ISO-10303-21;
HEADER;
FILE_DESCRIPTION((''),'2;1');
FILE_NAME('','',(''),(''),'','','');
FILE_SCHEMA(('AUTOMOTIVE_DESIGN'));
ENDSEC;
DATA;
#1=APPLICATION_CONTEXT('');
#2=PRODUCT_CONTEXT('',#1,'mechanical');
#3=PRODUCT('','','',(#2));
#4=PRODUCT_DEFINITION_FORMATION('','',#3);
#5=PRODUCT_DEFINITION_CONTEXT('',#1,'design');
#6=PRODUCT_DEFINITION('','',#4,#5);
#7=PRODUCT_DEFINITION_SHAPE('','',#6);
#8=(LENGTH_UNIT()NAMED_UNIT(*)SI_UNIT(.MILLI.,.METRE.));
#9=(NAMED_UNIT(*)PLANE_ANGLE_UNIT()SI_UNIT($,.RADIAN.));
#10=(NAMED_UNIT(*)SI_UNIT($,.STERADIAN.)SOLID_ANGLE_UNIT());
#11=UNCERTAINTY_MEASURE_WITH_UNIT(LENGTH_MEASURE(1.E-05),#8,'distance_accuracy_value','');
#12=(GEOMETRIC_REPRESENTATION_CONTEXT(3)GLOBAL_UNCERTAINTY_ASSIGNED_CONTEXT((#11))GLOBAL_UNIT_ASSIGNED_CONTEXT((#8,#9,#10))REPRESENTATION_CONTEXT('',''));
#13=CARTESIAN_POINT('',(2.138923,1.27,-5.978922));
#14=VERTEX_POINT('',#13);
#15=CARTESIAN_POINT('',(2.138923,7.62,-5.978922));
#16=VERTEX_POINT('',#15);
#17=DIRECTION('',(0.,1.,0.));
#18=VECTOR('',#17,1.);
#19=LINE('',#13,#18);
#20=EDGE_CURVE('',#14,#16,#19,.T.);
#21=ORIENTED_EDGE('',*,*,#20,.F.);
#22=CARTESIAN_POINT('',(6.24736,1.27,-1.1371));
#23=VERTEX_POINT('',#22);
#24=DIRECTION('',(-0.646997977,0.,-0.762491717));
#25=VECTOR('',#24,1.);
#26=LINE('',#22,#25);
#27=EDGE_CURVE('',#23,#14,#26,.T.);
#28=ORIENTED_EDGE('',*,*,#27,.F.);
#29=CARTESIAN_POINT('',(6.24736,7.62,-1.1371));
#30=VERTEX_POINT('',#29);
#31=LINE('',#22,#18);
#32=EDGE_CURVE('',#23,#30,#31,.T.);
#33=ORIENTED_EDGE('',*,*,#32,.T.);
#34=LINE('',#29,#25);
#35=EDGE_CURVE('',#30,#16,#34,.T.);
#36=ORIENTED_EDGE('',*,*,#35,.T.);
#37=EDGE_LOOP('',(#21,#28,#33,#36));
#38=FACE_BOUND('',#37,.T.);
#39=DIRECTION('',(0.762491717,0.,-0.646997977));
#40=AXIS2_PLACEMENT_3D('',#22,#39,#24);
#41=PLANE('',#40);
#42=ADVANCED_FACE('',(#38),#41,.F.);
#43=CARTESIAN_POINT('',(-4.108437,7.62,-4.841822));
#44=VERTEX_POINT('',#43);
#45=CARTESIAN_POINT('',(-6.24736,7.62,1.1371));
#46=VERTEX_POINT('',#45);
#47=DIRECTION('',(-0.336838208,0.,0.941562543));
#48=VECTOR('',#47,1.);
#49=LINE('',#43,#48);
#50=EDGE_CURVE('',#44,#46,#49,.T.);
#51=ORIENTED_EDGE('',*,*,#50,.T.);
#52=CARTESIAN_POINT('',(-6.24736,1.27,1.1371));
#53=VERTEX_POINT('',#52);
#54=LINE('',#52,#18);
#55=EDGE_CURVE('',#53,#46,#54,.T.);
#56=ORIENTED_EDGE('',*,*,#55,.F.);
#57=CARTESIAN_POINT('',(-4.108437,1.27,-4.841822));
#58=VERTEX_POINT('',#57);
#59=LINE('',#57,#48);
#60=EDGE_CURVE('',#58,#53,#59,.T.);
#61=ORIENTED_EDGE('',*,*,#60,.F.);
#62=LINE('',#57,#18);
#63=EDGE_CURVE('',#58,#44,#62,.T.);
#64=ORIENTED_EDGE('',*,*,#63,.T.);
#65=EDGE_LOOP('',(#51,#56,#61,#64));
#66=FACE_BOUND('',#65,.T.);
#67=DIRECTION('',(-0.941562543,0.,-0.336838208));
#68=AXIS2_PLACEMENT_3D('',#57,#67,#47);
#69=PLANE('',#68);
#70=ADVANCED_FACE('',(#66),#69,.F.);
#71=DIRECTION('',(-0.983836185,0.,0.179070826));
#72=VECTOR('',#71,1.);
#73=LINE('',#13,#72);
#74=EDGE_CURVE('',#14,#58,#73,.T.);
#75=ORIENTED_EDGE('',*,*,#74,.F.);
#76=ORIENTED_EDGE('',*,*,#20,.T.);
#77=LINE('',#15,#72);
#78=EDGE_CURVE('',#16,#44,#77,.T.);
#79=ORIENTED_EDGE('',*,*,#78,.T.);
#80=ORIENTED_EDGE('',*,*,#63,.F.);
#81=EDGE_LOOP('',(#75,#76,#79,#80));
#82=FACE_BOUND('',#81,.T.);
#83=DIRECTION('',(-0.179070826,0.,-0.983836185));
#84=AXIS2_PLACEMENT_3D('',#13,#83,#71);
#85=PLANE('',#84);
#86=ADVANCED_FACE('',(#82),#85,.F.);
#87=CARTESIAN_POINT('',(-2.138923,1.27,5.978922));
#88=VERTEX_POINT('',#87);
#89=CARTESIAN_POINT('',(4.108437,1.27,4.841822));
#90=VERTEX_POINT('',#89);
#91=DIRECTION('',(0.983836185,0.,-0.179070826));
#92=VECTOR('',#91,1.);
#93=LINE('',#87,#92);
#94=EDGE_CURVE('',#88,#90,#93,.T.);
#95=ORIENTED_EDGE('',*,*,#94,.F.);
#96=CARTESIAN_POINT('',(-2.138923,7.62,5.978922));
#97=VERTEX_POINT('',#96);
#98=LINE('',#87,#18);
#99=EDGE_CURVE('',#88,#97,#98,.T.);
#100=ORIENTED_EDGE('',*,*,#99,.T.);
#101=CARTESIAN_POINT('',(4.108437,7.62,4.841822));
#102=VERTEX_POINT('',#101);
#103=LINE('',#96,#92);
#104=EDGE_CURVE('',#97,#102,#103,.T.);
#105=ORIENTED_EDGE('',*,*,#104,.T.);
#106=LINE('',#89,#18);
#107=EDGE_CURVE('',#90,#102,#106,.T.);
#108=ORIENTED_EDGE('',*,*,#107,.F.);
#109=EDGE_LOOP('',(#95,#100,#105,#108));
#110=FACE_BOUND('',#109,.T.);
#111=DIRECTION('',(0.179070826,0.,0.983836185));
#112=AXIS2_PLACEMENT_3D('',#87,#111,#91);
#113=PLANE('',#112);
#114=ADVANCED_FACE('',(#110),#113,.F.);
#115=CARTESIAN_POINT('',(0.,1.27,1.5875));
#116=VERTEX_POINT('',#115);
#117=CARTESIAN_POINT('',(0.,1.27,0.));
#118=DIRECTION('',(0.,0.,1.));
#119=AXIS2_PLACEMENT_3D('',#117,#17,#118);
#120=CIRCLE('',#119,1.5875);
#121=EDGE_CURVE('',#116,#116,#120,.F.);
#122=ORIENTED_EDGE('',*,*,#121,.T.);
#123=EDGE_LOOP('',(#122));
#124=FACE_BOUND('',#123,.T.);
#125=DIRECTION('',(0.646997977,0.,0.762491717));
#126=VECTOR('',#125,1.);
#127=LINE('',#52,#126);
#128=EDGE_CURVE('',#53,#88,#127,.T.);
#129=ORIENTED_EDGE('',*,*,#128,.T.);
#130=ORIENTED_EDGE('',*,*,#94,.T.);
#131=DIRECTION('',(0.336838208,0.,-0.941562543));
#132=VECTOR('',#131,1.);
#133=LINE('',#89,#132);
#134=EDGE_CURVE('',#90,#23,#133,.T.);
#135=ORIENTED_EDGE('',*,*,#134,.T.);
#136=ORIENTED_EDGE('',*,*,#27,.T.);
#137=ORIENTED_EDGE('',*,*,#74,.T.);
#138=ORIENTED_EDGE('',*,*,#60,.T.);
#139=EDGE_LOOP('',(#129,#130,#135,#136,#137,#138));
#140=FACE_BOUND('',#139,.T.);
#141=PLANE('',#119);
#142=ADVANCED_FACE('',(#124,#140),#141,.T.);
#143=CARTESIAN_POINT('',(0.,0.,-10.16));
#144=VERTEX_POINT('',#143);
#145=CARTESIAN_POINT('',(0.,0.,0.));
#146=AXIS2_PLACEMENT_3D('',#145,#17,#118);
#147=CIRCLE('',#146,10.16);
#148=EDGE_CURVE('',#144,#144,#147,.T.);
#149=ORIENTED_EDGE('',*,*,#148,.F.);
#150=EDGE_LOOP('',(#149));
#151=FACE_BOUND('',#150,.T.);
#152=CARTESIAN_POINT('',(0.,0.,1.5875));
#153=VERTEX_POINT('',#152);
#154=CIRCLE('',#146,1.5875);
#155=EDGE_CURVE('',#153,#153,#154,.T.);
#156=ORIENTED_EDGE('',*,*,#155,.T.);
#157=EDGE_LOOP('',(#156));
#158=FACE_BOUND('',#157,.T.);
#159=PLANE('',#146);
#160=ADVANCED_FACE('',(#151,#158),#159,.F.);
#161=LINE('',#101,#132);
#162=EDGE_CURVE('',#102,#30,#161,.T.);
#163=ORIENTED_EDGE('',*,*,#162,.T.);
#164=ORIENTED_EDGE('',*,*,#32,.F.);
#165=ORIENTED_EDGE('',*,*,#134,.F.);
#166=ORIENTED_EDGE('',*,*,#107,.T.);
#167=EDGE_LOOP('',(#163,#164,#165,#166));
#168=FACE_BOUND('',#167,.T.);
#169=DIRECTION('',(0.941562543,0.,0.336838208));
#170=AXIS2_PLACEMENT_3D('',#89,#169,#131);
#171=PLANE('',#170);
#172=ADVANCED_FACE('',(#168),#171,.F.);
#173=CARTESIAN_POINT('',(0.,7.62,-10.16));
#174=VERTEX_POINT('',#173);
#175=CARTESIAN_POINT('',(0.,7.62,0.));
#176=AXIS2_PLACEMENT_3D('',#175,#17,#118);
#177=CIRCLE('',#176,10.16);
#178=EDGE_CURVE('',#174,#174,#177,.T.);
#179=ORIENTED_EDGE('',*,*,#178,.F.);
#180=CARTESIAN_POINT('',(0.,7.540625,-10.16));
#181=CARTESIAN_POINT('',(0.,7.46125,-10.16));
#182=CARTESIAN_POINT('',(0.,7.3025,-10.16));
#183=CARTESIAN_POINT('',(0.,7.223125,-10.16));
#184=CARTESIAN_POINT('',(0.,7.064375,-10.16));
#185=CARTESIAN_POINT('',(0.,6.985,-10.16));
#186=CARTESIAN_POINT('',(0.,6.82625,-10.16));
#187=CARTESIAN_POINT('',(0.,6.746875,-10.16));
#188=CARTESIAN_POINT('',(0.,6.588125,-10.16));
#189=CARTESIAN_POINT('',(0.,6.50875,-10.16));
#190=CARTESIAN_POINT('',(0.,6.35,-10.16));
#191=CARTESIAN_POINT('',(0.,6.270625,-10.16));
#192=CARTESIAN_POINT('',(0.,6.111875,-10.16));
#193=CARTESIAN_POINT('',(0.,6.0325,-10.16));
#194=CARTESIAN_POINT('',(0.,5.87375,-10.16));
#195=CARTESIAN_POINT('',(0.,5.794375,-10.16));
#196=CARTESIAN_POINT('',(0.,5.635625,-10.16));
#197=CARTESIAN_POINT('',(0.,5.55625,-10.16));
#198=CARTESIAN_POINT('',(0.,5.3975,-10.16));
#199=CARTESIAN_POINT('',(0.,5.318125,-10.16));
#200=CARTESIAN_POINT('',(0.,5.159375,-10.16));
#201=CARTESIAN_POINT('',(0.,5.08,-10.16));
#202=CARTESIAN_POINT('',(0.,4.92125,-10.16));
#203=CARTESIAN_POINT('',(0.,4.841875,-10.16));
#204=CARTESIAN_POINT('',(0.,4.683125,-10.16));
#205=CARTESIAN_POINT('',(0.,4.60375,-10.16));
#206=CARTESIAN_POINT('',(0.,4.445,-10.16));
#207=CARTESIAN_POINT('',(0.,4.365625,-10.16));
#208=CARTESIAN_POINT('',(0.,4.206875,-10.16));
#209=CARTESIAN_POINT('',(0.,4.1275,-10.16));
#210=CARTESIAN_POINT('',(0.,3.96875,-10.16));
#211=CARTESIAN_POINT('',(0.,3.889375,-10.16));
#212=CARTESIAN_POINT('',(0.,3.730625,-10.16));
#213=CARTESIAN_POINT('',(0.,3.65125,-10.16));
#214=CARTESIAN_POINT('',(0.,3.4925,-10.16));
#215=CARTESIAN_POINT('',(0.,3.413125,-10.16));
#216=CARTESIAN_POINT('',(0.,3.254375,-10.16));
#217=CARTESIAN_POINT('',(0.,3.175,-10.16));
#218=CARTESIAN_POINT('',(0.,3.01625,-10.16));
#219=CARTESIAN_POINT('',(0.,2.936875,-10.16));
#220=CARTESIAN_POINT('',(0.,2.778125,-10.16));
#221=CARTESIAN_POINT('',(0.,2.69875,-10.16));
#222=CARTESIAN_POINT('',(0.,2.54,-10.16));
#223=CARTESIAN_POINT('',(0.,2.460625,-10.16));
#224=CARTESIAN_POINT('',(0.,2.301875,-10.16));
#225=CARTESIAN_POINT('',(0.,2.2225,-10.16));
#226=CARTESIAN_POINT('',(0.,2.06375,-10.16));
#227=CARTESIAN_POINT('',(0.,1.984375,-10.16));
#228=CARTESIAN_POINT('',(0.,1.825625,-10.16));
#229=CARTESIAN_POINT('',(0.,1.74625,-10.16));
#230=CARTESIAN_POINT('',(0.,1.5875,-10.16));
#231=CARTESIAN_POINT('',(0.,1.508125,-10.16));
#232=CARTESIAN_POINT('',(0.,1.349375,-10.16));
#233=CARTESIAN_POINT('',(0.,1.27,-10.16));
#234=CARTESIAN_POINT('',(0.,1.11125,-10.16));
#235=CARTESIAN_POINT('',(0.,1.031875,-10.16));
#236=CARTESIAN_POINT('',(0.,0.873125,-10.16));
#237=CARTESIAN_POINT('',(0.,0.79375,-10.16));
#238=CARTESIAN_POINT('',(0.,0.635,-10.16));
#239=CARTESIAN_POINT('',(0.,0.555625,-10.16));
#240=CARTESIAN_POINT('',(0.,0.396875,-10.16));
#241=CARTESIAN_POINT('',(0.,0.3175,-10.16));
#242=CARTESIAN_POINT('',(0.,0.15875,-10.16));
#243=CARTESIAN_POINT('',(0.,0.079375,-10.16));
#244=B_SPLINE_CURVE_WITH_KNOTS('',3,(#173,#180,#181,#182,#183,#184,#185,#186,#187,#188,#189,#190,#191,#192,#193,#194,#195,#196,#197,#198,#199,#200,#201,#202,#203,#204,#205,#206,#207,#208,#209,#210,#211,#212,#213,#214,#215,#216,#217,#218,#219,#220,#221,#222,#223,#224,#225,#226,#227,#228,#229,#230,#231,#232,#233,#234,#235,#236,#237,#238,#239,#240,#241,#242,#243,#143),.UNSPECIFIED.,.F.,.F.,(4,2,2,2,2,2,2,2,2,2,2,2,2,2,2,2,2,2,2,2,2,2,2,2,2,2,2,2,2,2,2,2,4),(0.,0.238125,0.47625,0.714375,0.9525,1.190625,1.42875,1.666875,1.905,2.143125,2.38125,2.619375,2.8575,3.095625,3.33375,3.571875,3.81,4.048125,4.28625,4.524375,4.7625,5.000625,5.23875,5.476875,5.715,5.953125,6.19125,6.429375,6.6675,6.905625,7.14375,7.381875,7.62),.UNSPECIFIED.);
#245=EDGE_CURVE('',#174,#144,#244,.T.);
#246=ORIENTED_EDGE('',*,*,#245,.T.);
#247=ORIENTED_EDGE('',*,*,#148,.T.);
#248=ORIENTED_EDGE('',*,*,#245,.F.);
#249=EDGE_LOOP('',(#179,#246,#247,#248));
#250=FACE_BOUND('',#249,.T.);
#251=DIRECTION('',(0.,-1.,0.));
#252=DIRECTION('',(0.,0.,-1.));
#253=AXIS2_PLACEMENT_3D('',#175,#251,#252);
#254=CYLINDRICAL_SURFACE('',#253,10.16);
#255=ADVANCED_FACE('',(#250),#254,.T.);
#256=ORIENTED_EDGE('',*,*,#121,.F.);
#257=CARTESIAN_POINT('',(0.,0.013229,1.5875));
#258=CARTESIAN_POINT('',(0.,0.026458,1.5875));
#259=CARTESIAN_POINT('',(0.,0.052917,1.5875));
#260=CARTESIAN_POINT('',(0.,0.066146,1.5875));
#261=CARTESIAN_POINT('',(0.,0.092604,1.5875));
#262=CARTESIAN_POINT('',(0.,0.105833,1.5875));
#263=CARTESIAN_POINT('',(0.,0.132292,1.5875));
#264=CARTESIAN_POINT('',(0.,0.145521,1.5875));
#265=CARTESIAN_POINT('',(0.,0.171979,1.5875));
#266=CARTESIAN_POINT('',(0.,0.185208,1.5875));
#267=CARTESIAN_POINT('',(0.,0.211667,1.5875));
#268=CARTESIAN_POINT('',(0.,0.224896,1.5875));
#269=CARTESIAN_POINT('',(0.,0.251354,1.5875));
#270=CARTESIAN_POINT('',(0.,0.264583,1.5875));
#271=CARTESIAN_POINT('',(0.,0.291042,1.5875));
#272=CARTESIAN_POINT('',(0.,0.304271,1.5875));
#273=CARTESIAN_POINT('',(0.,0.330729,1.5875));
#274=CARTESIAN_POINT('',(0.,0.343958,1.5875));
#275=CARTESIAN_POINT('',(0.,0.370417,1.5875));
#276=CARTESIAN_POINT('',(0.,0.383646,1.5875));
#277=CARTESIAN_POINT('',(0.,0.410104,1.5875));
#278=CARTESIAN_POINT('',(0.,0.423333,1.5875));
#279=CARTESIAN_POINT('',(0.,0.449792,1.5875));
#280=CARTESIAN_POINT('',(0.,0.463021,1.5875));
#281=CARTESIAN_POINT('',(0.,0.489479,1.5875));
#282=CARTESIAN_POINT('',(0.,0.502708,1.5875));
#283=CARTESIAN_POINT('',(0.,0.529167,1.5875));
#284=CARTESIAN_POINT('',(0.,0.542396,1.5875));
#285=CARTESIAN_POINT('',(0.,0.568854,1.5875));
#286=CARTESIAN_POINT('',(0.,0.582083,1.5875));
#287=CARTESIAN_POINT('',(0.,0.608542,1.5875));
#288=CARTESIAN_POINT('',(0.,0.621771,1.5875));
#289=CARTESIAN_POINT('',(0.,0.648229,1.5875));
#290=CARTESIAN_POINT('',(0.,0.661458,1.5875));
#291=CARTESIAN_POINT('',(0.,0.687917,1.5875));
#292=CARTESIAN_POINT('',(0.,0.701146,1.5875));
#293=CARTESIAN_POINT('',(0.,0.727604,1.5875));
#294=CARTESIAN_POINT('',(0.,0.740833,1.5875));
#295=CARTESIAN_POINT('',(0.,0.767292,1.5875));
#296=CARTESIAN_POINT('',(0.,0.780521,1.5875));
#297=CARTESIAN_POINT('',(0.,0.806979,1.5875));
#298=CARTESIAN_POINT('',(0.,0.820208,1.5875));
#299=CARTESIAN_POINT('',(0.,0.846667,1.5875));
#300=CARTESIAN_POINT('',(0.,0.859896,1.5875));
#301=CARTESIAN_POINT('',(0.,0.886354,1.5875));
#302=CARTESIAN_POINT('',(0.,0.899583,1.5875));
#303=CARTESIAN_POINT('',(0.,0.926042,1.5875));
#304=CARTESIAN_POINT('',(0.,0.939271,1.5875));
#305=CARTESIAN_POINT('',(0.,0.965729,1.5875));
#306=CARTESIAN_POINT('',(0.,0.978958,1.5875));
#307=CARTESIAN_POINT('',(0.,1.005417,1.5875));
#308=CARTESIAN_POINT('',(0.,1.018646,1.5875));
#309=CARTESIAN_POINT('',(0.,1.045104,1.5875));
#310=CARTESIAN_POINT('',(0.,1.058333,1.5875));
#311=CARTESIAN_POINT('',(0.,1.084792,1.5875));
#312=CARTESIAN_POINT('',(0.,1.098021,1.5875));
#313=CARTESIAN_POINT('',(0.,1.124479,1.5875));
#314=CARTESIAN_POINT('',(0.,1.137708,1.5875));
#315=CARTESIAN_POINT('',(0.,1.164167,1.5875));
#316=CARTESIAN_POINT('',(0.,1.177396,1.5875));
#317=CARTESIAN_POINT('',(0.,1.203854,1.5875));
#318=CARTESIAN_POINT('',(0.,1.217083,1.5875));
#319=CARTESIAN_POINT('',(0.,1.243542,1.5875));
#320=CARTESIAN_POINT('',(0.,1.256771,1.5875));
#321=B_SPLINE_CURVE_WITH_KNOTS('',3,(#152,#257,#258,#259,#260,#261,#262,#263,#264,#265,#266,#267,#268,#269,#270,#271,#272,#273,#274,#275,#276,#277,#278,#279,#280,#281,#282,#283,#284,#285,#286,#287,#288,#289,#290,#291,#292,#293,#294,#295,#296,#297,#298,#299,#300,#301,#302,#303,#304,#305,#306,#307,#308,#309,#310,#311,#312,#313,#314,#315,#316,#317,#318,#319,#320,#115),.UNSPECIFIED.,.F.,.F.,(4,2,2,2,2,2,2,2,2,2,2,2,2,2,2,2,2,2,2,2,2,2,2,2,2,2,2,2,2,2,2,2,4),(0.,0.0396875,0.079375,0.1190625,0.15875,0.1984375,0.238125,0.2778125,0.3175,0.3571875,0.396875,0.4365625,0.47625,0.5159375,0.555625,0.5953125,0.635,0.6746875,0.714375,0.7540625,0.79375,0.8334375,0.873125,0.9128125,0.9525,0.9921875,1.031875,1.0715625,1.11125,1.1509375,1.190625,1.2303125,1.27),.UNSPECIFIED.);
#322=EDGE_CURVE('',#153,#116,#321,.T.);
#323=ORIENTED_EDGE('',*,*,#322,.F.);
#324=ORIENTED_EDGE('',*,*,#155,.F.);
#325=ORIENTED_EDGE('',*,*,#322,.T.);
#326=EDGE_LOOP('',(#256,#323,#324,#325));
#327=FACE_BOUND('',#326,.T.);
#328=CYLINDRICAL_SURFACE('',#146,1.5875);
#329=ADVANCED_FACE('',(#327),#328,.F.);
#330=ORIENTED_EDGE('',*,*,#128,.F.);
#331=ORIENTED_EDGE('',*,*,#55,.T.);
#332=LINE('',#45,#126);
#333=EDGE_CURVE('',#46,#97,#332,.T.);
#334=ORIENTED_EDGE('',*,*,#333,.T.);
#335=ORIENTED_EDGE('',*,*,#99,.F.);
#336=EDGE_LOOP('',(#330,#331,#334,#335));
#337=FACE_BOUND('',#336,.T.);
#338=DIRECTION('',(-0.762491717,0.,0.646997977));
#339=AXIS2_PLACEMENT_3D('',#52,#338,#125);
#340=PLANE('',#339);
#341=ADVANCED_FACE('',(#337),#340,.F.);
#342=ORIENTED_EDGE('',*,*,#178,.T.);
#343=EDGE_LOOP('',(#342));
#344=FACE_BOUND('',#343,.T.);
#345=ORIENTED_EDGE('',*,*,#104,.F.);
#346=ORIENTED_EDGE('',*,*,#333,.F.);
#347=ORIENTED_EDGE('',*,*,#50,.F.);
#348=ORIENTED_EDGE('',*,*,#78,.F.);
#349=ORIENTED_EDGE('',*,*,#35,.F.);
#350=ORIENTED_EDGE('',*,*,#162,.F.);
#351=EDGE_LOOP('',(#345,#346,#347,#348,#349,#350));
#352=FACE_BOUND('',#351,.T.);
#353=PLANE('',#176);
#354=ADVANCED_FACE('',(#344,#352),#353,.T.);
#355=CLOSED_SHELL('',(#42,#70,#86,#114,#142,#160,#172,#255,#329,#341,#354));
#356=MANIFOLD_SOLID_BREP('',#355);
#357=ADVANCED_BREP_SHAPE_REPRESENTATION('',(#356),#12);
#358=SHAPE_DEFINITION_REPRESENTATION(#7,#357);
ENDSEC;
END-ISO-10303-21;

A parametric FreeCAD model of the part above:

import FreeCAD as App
import Part
import Sketcher

V = App.Vector
Q = App.Units.Quantity

doc = App.newDocument("Part")
params = doc.addObject("Spreadsheet::Sheet", "Params")
for row, (alias, value) in enumerate([
    ("sketch1_diameter", "0.8 in"),
    ("pad1_length", "0.3 in"),
    ("sketch2_diameter", "0.125 in"),
    ("sketch3_length", "0.25 in"),
    ("pocket2_length", "0.25 in"),
], start=1):
    params.set(f"A{row}", alias)
    params.set(f"B{row}", "=" + value)
    params.setAlias(f"B{row}", alias)

body = doc.addObject("PartDesign::Body", "Body")

# Sketch on XZ plane
sketch1 = body.newObject("Sketcher::SketchObject", "Sketch")
sketch1.AttachmentSupport = (doc.getObject("XZ_Plane"), [""])
sketch1.MapMode = "FlatFace"
sketch1.addGeometry(Part.Circle(V(0, 0, 0), V(0, 0, 1), 10.16), False)
sketch1.addConstraint(Sketcher.Constraint("Coincident", 0, 3, -1, 1))
sketch1.addConstraint(Sketcher.Constraint("Diameter", 0, Q("0.8 in")))
sketch1.setExpression("Constraints[1]", "Params.sketch1_diameter")
pad1 = body.newObject("PartDesign::Pad", "Pad")
pad1.Profile = sketch1
pad1.setExpression("Length", "Params.pad1_length")
pad1.Reversed = True

# Sketch on XZ plane
sketch2 = body.newObject("Sketcher::SketchObject", "Sketch001")
sketch2.AttachmentSupport = (doc.getObject("XZ_Plane"), [""])
sketch2.MapMode = "FlatFace"
sketch2.AttachmentOffset = App.Placement(V(0, 0, -0.3 * 25.4), App.Rotation())
sketch2.addGeometry(Part.Circle(V(0, 0, 0), V(0, 0, 1), 1.5875), False)
sketch2.addConstraint(Sketcher.Constraint("Coincident", 0, 3, -1, 1))
sketch2.addConstraint(Sketcher.Constraint("Diameter", 0, Q("0.125 in")))
sketch2.setExpression("Constraints[1]", "Params.sketch2_diameter")
pocket1 = body.newObject("PartDesign::Pocket", "Pocket")
pocket1.Profile = sketch2
pocket1.Type = "ThroughAll"
pocket1.Reversed = True

# Sketch on XZ plane
sketch3 = body.newObject("Sketcher::SketchObject", "Sketch002")
sketch3.AttachmentSupport = (doc.getObject("XZ_Plane"), [""])
sketch3.MapMode = "FlatFace"
sketch3.AttachmentOffset = App.Placement(V(0, 0, -0.3 * 25.4), App.Rotation())
sketch3.addGeometry(Part.LineSegment(V(6.24736, -1.1371, 0), V(2.138923, -5.978922, 0)), False)
sketch3.addGeometry(Part.LineSegment(V(2.138923, -5.978922, 0), V(-4.108437, -4.841822, 0)), False)
sketch3.addGeometry(Part.LineSegment(V(-4.108437, -4.841822, 0), V(-6.24736, 1.1371, 0)), False)
sketch3.addGeometry(Part.LineSegment(V(-6.24736, 1.1371, 0), V(-2.138923, 5.978922, 0)), False)
sketch3.addGeometry(Part.LineSegment(V(-2.138923, 5.978922, 0), V(4.108437, 4.841822, 0)), False)
sketch3.addGeometry(Part.LineSegment(V(4.108437, 4.841822, 0), V(6.24736, -1.1371, 0)), False)
sketch3.addConstraint(Sketcher.Constraint("Coincident", 0, 2, 1, 1))
sketch3.addConstraint(Sketcher.Constraint("Coincident", 1, 2, 2, 1))
sketch3.addConstraint(Sketcher.Constraint("Coincident", 2, 2, 3, 1))
sketch3.addConstraint(Sketcher.Constraint("Coincident", 3, 2, 4, 1))
sketch3.addConstraint(Sketcher.Constraint("Coincident", 4, 2, 5, 1))
sketch3.addConstraint(Sketcher.Constraint("Coincident", 5, 2, 0, 1))
sketch3.addConstraint(Sketcher.Constraint("Symmetric", 0, 2, 3, 2, -1, 1))
sketch3.addConstraint(Sketcher.Constraint("Symmetric", 1, 2, 4, 2, -1, 1))
sketch3.addConstraint(Sketcher.Constraint("Symmetric", 2, 2, 5, 2, -1, 1))
sketch3.addConstraint(Sketcher.Constraint("Equal", 0, 1))
sketch3.addConstraint(Sketcher.Constraint("Equal", 1, 2))
sketch3.addConstraint(Sketcher.Constraint("Distance", 0, Q("0.25 in")))
sketch3.addConstraint(Sketcher.Constraint("DistanceY", -1, 1, 2, 2, 1.1371))
sketch3.addConstraint(Sketcher.Constraint("DistanceY", 0, 2, 1, 2, 1.1371))
sketch3.addConstraint(Sketcher.Constraint("DistanceX", 2, 2, -1, 1, 6.24736))
sketch3.setExpression("Constraints[11]", "Params.sketch3_length")
pocket2 = body.newObject("PartDesign::Pocket", "Pocket001")
pocket2.Profile = sketch3
pocket2.setExpression("Length", "Params.pocket2_length")
pocket2.Reversed = True

doc.recompute()
